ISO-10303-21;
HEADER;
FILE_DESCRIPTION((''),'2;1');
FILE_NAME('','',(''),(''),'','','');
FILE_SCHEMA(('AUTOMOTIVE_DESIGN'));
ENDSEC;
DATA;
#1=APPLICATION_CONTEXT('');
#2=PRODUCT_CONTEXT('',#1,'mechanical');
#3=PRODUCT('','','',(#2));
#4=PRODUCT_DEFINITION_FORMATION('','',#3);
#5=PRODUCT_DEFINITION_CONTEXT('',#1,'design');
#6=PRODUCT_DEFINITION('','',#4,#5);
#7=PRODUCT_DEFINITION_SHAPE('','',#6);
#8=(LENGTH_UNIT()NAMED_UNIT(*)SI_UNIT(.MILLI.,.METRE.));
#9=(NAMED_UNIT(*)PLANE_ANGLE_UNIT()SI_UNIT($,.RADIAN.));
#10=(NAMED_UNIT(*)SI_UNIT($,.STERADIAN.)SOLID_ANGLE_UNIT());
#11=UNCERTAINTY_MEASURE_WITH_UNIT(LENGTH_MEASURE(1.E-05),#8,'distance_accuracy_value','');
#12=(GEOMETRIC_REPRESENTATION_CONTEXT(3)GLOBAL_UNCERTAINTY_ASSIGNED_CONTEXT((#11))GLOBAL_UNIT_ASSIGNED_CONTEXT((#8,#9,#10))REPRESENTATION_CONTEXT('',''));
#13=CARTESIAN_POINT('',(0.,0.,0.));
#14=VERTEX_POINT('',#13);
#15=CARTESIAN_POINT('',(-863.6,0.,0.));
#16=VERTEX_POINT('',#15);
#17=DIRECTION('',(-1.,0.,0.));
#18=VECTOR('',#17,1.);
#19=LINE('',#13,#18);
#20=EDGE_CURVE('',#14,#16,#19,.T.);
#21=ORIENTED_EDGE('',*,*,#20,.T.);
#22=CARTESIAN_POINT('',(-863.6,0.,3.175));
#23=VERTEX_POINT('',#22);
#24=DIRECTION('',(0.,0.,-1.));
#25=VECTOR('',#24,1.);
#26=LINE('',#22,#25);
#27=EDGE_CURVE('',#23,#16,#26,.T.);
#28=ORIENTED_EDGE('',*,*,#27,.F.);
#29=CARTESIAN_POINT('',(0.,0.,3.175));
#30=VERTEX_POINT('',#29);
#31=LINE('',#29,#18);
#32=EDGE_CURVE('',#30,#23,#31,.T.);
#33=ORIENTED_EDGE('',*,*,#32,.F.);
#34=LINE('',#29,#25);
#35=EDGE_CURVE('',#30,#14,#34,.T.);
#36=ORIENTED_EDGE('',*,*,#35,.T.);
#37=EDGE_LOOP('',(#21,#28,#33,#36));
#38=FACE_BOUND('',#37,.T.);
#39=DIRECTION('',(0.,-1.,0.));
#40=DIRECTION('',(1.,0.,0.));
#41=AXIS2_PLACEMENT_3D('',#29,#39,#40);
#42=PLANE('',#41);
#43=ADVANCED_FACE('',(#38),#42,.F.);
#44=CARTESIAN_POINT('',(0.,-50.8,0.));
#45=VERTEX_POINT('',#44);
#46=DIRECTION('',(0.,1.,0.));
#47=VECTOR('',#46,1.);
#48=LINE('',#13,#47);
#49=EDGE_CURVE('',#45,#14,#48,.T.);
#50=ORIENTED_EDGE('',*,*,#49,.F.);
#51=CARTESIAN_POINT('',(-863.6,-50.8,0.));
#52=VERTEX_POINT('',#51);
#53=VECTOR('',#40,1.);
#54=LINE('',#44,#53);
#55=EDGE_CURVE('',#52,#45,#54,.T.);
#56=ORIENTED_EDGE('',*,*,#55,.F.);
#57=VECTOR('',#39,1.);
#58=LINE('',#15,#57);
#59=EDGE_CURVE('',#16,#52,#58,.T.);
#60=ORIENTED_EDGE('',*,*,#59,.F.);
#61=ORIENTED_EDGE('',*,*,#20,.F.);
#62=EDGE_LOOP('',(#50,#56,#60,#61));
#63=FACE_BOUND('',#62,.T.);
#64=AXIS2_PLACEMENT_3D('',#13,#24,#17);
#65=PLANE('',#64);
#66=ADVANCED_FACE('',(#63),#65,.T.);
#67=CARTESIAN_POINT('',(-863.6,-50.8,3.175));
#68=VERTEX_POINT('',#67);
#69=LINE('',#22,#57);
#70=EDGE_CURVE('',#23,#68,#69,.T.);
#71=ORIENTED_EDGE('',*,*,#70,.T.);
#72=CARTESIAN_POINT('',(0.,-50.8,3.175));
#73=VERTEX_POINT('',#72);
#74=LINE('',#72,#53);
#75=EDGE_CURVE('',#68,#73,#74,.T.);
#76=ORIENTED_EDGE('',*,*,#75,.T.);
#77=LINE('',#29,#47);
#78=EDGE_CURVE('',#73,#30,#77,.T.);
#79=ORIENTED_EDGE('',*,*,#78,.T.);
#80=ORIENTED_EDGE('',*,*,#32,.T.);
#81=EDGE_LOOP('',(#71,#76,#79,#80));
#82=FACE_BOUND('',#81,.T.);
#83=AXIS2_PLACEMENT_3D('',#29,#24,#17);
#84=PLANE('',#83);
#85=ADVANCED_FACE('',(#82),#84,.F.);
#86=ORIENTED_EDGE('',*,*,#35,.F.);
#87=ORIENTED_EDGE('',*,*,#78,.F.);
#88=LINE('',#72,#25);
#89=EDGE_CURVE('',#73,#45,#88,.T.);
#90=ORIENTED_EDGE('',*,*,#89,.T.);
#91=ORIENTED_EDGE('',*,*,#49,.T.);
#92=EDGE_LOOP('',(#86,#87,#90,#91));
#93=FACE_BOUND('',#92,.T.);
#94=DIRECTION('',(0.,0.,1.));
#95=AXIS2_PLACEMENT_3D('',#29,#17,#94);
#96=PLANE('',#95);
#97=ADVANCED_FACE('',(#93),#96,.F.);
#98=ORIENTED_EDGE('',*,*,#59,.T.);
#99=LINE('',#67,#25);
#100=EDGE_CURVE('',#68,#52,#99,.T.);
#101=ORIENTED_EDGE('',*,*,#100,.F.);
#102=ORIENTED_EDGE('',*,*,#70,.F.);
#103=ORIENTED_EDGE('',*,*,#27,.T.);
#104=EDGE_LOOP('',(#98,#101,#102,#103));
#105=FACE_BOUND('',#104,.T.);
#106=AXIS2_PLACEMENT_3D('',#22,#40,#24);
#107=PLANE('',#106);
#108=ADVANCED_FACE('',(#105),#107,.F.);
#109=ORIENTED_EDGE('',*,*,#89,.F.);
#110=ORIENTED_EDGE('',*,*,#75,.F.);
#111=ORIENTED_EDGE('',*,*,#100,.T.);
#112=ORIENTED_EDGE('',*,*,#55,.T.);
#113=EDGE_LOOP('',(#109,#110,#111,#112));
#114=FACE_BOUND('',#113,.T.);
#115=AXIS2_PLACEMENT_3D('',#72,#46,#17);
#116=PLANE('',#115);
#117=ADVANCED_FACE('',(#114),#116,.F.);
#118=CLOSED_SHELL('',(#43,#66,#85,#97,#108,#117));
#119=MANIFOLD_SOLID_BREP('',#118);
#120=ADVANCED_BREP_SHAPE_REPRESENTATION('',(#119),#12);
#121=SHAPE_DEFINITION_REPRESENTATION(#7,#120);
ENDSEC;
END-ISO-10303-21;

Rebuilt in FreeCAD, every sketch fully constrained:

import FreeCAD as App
import Part
import Sketcher

V = App.Vector
Q = App.Units.Quantity

doc = App.newDocument("Part")
body = doc.addObject("PartDesign::Body", "Body")

# Sketch on XY plane
sketch1 = body.newObject("Sketcher::SketchObject", "Sketch")
sketch1.AttachmentSupport = (doc.getObject("XY_Plane"), [""])
sketch1.MapMode = "FlatFace"
sketch1.addGeometry(Part.LineSegment(V(-864, 0, 0), V(-864, -51, 0)), False)
sketch1.addGeometry(Part.LineSegment(V(-864, -51, 0), V(0, -51, 0)), False)
sketch1.addGeometry(Part.LineSegment(V(0, -51, 0), V(0, 0, 0)), False)
sketch1.addGeometry(Part.LineSegment(V(0, 0, 0), V(-864, 0, 0)), False)
sketch1.addConstraint(Sketcher.Constraint("Coincident", 0, 2, 1, 1))
sketch1.addConstraint(Sketcher.Constraint("Coincident", 1, 2, 2, 1))
sketch1.addConstraint(Sketcher.Constraint("Coincident", 2, 2, 3, 1))
sketch1.addConstraint(Sketcher.Constraint("Coincident", 3, 2, 0, 1))
sketch1.addConstraint(Sketcher.Constraint("Vertical", 0))
sketch1.addConstraint(Sketcher.Constraint("Horizontal", 1))
sketch1.addConstraint(Sketcher.Constraint("Vertical", 2))
sketch1.addConstraint(Sketcher.Constraint("Horizontal", 3))
sketch1.addConstraint(Sketcher.Constraint("Coincident", 2, 2, -1, 1))
sketch1.addConstraint(Sketcher.Constraint("DistanceX", 1, 1, 1, 2, Q("34 in")))
sketch1.addConstraint(Sketcher.Constraint("DistanceY", 0, 2, 0, 1, Q("2 in")))
pad1 = body.newObject("PartDesign::Pad", "Pad")
pad1.Profile = sketch1
pad1.Length = Q("0.125 in")

doc.recompute()
